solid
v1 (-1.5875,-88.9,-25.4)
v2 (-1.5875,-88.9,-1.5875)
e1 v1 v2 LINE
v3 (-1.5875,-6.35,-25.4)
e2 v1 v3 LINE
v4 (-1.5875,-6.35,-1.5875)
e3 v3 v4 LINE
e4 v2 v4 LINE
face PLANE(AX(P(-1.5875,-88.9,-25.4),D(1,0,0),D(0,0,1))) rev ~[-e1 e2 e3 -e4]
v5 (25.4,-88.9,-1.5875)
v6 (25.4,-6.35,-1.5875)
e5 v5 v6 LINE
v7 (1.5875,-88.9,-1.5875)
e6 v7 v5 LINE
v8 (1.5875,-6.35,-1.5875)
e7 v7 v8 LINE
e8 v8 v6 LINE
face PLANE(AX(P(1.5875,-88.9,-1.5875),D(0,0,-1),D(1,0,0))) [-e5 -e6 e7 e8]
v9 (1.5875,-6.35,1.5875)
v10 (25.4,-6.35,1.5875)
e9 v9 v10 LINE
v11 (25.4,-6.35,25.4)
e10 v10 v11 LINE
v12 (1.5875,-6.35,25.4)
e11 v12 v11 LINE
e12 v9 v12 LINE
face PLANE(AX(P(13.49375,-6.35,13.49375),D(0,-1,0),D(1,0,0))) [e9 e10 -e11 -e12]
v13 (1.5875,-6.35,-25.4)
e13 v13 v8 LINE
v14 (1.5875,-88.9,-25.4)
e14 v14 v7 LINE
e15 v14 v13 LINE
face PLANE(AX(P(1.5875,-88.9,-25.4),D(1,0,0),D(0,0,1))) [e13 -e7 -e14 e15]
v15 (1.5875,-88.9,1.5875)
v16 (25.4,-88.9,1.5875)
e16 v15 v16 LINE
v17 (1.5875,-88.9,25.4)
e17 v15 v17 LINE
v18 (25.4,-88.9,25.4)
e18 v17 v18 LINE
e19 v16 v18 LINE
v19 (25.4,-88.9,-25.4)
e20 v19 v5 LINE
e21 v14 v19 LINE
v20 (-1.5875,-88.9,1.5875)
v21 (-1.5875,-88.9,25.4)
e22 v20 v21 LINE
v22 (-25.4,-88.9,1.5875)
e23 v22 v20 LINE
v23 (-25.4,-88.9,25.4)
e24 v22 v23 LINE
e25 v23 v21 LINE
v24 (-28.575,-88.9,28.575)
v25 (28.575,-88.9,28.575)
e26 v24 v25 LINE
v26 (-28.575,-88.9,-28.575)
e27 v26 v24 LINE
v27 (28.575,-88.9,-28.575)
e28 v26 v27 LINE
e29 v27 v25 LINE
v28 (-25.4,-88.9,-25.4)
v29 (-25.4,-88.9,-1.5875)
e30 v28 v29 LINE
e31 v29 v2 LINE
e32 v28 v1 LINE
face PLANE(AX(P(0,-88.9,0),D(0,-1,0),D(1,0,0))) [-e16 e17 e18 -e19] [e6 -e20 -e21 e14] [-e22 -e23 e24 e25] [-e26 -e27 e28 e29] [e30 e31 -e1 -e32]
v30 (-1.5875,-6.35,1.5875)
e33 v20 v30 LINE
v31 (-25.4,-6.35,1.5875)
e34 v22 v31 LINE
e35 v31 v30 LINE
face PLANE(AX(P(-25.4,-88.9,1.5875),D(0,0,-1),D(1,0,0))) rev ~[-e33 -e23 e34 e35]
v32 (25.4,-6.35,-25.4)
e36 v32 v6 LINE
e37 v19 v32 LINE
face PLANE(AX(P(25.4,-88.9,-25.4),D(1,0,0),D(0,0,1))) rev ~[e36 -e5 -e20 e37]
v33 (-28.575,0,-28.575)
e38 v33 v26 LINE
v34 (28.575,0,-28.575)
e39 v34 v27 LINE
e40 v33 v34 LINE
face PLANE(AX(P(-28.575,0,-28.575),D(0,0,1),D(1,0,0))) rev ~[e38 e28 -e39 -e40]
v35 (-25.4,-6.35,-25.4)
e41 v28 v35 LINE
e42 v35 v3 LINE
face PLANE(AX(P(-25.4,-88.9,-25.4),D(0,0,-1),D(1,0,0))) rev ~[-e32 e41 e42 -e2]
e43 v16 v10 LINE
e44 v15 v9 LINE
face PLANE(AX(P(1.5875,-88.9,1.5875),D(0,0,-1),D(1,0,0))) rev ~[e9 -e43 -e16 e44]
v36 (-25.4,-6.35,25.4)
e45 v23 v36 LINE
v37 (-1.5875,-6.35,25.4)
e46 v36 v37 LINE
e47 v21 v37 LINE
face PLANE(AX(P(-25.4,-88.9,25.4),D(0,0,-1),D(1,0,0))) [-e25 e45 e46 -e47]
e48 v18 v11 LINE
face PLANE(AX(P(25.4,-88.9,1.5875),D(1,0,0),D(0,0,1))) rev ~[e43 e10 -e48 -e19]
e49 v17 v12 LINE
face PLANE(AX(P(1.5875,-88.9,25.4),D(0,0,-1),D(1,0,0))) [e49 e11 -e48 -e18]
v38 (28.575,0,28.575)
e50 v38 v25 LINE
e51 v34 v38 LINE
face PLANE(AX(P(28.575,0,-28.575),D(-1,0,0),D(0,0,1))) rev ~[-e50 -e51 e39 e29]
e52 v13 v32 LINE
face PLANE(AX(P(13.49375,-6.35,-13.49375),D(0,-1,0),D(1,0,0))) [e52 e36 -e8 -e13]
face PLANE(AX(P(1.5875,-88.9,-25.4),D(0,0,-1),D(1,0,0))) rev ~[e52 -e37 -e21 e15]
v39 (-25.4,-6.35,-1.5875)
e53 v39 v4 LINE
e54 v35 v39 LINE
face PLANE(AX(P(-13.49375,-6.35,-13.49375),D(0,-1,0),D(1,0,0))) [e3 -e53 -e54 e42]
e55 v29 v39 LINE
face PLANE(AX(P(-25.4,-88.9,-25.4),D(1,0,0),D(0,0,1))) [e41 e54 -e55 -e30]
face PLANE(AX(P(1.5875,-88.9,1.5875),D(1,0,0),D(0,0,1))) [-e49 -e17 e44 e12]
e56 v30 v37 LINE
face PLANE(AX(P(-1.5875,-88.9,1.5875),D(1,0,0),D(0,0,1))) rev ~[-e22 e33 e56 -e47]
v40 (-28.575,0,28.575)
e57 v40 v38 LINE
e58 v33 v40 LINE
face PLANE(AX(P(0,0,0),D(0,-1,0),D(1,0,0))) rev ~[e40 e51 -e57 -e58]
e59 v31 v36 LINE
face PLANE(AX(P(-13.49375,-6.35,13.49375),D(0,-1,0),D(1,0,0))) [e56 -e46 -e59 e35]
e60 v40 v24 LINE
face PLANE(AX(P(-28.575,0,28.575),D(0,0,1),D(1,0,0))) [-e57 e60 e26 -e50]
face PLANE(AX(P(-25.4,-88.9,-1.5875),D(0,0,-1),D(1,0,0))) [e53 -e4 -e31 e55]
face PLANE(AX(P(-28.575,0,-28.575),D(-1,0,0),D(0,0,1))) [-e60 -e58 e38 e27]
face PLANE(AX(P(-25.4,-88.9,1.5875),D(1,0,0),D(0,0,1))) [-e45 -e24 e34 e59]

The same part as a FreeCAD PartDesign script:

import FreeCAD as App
import Part
import Sketcher

V = App.Vector
Q = App.Units.Quantity


def add_polygon(sketch, points):
    """Adds a closed chain of lines whose ends are joined by coincident constraints."""
    first, n = sketch.GeometryCount, len(points)
    for a, b in zip(points, points[1:] + points[:1]):
        sketch.addGeometry(Part.LineSegment(App.Vector(*a, 0), App.Vector(*b, 0)), False)
    for i in range(n):
        sketch.addConstraint(Sketcher.Constraint("Coincident", first + i, 2, first + (i + 1) % n, 1))

doc = App.newDocument("Part")
body = doc.addObject("PartDesign::Body", "Body")

# Sketch on XZ plane
sketch1 = doc.addObject("Sketcher::SketchObject", "Sketch")
body.addObject(sketch1)
sketch1.AttachmentSupport = (doc.XZ_Plane, [""])
sketch1.MapMode = "FlatFace"
add_polygon(sketch1, [(-28.575, 28.575), (-28.575, -28.575), (28.575, -28.575), (28.575, 28.575)])  # lines 0-3
sketch1.addConstraint(Sketcher.Constraint("Vertical", 0))
sketch1.addConstraint(Sketcher.Constraint("Horizontal", 1))
sketch1.addConstraint(Sketcher.Constraint("Vertical", 2))
sketch1.addConstraint(Sketcher.Constraint("Horizontal", 3))
sketch1.addConstraint(Sketcher.Constraint("Symmetric", 0, 2, 2, 2, -1, 1))
sketch1.addConstraint(Sketcher.Constraint("Equal", 3, 0))
sketch1.addConstraint(Sketcher.Constraint("DistanceX", 1, 1, 1, 2, Q("2.25 in")))
pad1 = doc.addObject("PartDesign::Pad", "Pad")
body.addObject(pad1)
pad1.Profile = sketch1
pad1.Length = Q("3.5 in")

# Sketch on XZ plane
sketch2 = doc.addObject("Sketcher::SketchObject", "Sketch001")
body.addObject(sketch2)
sketch2.AttachmentSupport = (doc.XZ_Plane, [""])
sketch2.MapMode = "FlatFace"
sketch2.AttachmentOffset = App.Placement(V(0, 0, 3.5 * 25.4), App.Rotation())
add_polygon(sketch2, [(-25.4, 25.4), (-25.4, 1.5875), (-1.5875, 1.5875), (-1.5875, 25.4)])  # lines 0-3
sketch2.addConstraint(Sketcher.Constraint("Vertical", 0))
sketch2.addConstraint(Sketcher.Constraint("Horizontal", 1))
sketch2.addConstraint(Sketcher.Constraint("Vertical", 2))
sketch2.addConstraint(Sketcher.Constraint("Horizontal", 3))
sketch2.addConstraint(Sketcher.Constraint("Equal", 3, 0))
sketch2.addConstraint(Sketcher.Constraint("DistanceX", 0, 2, -1, 1, Q("1 in")))
sketch2.addConstraint(Sketcher.Constraint("DistanceY", -1, 1, 2, 2, Q("1 in")))
sketch2.addConstraint(Sketcher.Constraint("DistanceX", 1, 1, 1, 2, Q("0.9375 in")))
pocket1 = doc.addObject("PartDesign::Pocket", "Pocket")
body.addObject(pocket1)
pocket1.Profile = sketch2
pocket1.Length = Q("3.25 in")

# Sketch on XZ plane
sketch3 = doc.addObject("Sketcher::SketchObject", "Sketch002")
body.addObject(sketch3)
sketch3.AttachmentSupport = (doc.XZ_Plane, [""])
sketch3.MapMode = "FlatFace"
sketch3.AttachmentOffset = App.Placement(V(0, 0, 3.5 * 25.4), App.Rotation())
add_polygon(sketch3, [(1.5875, 25.4), (1.5875, 1.5875), (25.4, 1.5875), (25.4, 25.4)])  # lines 0-3
sketch3.addConstraint(Sketcher.Constraint("Vertical", 0))
sketch3.addConstraint(Sketcher.Constraint("Horizontal", 1))
sketch3.addConstraint(Sketcher.Constraint("Vertical", 2))
sketch3.addConstraint(Sketcher.Constraint("Horizontal", 3))
sketch3.addConstraint(Sketcher.Constraint("Equal", 3, 0))
sketch3.addConstraint(Sketcher.Constraint("DistanceX", -1, 1, 1, 2, Q("1 in")))
sketch3.addConstraint(Sketcher.Constraint("DistanceY", -1, 1, 2, 2, Q("1 in")))
sketch3.addConstraint(Sketcher.Constraint("DistanceX", 1, 1, 1, 2, Q("0.9375 in")))
pocket2 = doc.addObject("PartDesign::Pocket", "Pocket001")
body.addObject(pocket2)
pocket2.Profile = sketch3
pocket2.Length = Q("3.25 in")

# Sketch on XZ plane
sketch4 = doc.addObject("Sketcher::SketchObject", "Sketch003")
body.addObject(sketch4)
sketch4.AttachmentSupport = (doc.XZ_Plane, [""])
sketch4.MapMode = "FlatFace"
sketch4.AttachmentOffset = App.Placement(V(0, 0, 3.5 * 25.4), App.Rotation())
add_polygon(sketch4, [(-25.4, -1.5875), (-25.4, -25.4), (-1.5875, -25.4), (-1.5875, -1.5875)])  # lines 0-3
sketch4.addConstraint(Sketcher.Constraint("Vertical", 0))
sketch4.addConstraint(Sketcher.Constraint("Horizontal", 1))
sketch4.addConstraint(Sketcher.Constraint("Vertical", 2))
sketch4.addConstraint(Sketcher.Constraint("Horizontal", 3))
sketch4.addConstraint(Sketcher.Constraint("Equal", 3, 0))
sketch4.addConstraint(Sketcher.Constraint("DistanceX", 0, 2, -1, 1, Q("1 in")))
sketch4.addConstraint(Sketcher.Constraint("DistanceY", 0, 2, -1, 1, Q("1 in")))
sketch4.addConstraint(Sketcher.Constraint("DistanceX", 1, 1, 1, 2, Q("0.9375 in")))
pocket3 = doc.addObject("PartDesign::Pocket", "Pocket002")
body.addObject(pocket3)
pocket3.Profile = sketch4
pocket3.Length = Q("3.25 in")

# Sketch on XZ plane
sketch5 = doc.addObject("Sketcher::SketchObject", "Sketch004")
body.addObject(sketch5)
sketch5.AttachmentSupport = (doc.XZ_Plane, [""])
sketch5.MapMode = "FlatFace"
sketch5.AttachmentOffset = App.Placement(V(0, 0, 3.5 * 25.4), App.Rotation())
add_polygon(sketch5, [(1.5875, -1.5875), (1.5875, -25.4), (25.4, -25.4), (25.4, -1.5875)])  # lines 0-3
sketch5.addConstraint(Sketcher.Constraint("Vertical", 0))
sketch5.addConstraint(Sketcher.Constraint("Horizontal", 1))
sketch5.addConstraint(Sketcher.Constraint("Vertical", 2))
sketch5.addConstraint(Sketcher.Constraint("Horizontal", 3))
sketch5.addConstraint(Sketcher.Constraint("Equal", 3, 0))
sketch5.addConstraint(Sketcher.Constraint("DistanceY", 0, 2, -1, 1, Q("1 in")))
sketch5.addConstraint(Sketcher.Constraint("DistanceX", -1, 1, 1, 2, Q("1 in")))
sketch5.addConstraint(Sketcher.Constraint("DistanceX", 1, 1, 1, 2, Q("0.9375 in")))
pocket4 = doc.addObject("PartDesign::Pocket", "Pocket003")
body.addObject(pocket4)
pocket4.Profile = sketch5
pocket4.Length = Q("3.25 in")

doc.recompute()
